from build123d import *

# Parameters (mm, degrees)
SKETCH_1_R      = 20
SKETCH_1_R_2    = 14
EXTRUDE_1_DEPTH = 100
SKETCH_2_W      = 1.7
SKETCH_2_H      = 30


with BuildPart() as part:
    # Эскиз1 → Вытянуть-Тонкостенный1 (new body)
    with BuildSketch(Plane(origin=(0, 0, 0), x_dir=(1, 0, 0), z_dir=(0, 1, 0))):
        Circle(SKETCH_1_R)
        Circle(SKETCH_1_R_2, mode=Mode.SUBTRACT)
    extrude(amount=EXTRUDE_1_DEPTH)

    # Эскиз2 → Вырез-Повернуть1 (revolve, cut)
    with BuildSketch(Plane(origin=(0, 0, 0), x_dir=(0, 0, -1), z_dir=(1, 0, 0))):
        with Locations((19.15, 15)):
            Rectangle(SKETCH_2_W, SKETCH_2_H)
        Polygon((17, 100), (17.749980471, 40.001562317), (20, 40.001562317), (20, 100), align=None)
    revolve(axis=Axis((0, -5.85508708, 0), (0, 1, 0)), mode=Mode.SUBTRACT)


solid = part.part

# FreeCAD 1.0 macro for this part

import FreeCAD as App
import Part
import Sketcher
Q = App.Units.Quantity


def add_polygon(sketch, points):
    """Adds a closed chain of lines whose ends are joined by coincident constraints."""
    first, n = sketch.GeometryCount, len(points)
    for a, b in zip(points, points[1:] + points[:1]):
        sketch.addGeometry(Part.LineSegment(App.Vector(*a, 0), App.Vector(*b, 0)), False)
    for i in range(n):
        sketch.addConstraint(Sketcher.Constraint("Coincident", first + i, 2, first + (i + 1) % n, 1))

doc = App.newDocument("Part")
body = doc.addObject("PartDesign::Body", "Body")

# Sketch on XZ plane
sketch1 = body.newObject("Sketcher::SketchObject", "Sketch")
sketch1.AttachmentSupport = (doc.getObject("XZ_Plane"), [""])
sketch1.MapMode = "FlatFace"
sketch1.addGeometry(Part.Circle(App.Vector(0, 0, 0), App.Vector(0, 0, 1), 20), False)
sketch1.addGeometry(Part.Circle(App.Vector(0, 0, 0), App.Vector(0, 0, 1), 14), False)
sketch1.addConstraint(Sketcher.Constraint("Coincident", 0, 3, -1, 1))
sketch1.addConstraint(Sketcher.Constraint("Coincident", 1, 3, -1, 1))
sketch1.addConstraint(Sketcher.Constraint("Diameter", 0, Q("40 mm")))
sketch1.addConstraint(Sketcher.Constraint("Diameter", 1, Q("28 mm")))
pad1 = body.newObject("PartDesign::Pad", "Pad")
pad1.Profile = sketch1
pad1.Length = 100
pad1.Reversed = True

# Sketch on YZ plane
sketch2 = body.newObject("Sketcher::SketchObject", "Sketch001")
sketch2.AttachmentSupport = (doc.getObject("YZ_Plane"), [""])
sketch2.MapMode = "FlatFace"
add_polygon(sketch2, [(30, -18.3), (0, -18.3), (0, -20), (30, -20)])  # lines 0-3
add_polygon(sketch2, [(100, -17), (40.001562, -17.74998), (40.001562, -20), (100, -20)])  # lines 4-7
sketch2.addConstraint(Sketcher.Constraint("Horizontal", 0))
sketch2.addConstraint(Sketcher.Constraint("Vertical", 1))
sketch2.addConstraint(Sketcher.Constraint("Horizontal", 2))
sketch2.addConstraint(Sketcher.Constraint("Vertical", 3))
sketch2.addConstraint(Sketcher.Constraint("Vertical", 5))
sketch2.addConstraint(Sketcher.Constraint("Horizontal", 6))
sketch2.addConstraint(Sketcher.Constraint("Vertical", 7))
sketch2.addConstraint(Sketcher.Constraint("PointOnObject", 0, 2, -2))
sketch2.addConstraint(Sketcher.Constraint("Horizontal", 2, 2, 5, 2))
sketch2.addConstraint(Sketcher.Constraint("DistanceX", 0, 2, 0, 1, Q("30 mm")))
sketch2.addConstraint(Sketcher.Constraint("DistanceY", 7, 1, 7, 2, Q("3 mm")))
sketch2.addConstraint(Sketcher.Constraint("DistanceY", 1, 2, 1, 1, Q("1.7 mm")))
sketch2.addConstraint(Sketcher.Constraint("DistanceY", 1, 2, -1, 1, Q("20 mm")))
sketch2.addConstraint(Sketcher.Constraint("DistanceX", -1, 1, 6, 2, Q("100 mm")))
sketch2.addConstraint(Sketcher.Constraint("DistanceY", 5, 2, 5, 1, Q("2.25002 mm")))
sketch2.addConstraint(Sketcher.Constraint("DistanceX", 6, 1, 6, 2, Q("59.998438 mm")))
groove = body.newObject("PartDesign::Groove", "Groove")
groove.Profile = sketch2
groove.ReferenceAxis = (sketch2, ["H_Axis"])
groove.Angle = 360

doc.recompute()
